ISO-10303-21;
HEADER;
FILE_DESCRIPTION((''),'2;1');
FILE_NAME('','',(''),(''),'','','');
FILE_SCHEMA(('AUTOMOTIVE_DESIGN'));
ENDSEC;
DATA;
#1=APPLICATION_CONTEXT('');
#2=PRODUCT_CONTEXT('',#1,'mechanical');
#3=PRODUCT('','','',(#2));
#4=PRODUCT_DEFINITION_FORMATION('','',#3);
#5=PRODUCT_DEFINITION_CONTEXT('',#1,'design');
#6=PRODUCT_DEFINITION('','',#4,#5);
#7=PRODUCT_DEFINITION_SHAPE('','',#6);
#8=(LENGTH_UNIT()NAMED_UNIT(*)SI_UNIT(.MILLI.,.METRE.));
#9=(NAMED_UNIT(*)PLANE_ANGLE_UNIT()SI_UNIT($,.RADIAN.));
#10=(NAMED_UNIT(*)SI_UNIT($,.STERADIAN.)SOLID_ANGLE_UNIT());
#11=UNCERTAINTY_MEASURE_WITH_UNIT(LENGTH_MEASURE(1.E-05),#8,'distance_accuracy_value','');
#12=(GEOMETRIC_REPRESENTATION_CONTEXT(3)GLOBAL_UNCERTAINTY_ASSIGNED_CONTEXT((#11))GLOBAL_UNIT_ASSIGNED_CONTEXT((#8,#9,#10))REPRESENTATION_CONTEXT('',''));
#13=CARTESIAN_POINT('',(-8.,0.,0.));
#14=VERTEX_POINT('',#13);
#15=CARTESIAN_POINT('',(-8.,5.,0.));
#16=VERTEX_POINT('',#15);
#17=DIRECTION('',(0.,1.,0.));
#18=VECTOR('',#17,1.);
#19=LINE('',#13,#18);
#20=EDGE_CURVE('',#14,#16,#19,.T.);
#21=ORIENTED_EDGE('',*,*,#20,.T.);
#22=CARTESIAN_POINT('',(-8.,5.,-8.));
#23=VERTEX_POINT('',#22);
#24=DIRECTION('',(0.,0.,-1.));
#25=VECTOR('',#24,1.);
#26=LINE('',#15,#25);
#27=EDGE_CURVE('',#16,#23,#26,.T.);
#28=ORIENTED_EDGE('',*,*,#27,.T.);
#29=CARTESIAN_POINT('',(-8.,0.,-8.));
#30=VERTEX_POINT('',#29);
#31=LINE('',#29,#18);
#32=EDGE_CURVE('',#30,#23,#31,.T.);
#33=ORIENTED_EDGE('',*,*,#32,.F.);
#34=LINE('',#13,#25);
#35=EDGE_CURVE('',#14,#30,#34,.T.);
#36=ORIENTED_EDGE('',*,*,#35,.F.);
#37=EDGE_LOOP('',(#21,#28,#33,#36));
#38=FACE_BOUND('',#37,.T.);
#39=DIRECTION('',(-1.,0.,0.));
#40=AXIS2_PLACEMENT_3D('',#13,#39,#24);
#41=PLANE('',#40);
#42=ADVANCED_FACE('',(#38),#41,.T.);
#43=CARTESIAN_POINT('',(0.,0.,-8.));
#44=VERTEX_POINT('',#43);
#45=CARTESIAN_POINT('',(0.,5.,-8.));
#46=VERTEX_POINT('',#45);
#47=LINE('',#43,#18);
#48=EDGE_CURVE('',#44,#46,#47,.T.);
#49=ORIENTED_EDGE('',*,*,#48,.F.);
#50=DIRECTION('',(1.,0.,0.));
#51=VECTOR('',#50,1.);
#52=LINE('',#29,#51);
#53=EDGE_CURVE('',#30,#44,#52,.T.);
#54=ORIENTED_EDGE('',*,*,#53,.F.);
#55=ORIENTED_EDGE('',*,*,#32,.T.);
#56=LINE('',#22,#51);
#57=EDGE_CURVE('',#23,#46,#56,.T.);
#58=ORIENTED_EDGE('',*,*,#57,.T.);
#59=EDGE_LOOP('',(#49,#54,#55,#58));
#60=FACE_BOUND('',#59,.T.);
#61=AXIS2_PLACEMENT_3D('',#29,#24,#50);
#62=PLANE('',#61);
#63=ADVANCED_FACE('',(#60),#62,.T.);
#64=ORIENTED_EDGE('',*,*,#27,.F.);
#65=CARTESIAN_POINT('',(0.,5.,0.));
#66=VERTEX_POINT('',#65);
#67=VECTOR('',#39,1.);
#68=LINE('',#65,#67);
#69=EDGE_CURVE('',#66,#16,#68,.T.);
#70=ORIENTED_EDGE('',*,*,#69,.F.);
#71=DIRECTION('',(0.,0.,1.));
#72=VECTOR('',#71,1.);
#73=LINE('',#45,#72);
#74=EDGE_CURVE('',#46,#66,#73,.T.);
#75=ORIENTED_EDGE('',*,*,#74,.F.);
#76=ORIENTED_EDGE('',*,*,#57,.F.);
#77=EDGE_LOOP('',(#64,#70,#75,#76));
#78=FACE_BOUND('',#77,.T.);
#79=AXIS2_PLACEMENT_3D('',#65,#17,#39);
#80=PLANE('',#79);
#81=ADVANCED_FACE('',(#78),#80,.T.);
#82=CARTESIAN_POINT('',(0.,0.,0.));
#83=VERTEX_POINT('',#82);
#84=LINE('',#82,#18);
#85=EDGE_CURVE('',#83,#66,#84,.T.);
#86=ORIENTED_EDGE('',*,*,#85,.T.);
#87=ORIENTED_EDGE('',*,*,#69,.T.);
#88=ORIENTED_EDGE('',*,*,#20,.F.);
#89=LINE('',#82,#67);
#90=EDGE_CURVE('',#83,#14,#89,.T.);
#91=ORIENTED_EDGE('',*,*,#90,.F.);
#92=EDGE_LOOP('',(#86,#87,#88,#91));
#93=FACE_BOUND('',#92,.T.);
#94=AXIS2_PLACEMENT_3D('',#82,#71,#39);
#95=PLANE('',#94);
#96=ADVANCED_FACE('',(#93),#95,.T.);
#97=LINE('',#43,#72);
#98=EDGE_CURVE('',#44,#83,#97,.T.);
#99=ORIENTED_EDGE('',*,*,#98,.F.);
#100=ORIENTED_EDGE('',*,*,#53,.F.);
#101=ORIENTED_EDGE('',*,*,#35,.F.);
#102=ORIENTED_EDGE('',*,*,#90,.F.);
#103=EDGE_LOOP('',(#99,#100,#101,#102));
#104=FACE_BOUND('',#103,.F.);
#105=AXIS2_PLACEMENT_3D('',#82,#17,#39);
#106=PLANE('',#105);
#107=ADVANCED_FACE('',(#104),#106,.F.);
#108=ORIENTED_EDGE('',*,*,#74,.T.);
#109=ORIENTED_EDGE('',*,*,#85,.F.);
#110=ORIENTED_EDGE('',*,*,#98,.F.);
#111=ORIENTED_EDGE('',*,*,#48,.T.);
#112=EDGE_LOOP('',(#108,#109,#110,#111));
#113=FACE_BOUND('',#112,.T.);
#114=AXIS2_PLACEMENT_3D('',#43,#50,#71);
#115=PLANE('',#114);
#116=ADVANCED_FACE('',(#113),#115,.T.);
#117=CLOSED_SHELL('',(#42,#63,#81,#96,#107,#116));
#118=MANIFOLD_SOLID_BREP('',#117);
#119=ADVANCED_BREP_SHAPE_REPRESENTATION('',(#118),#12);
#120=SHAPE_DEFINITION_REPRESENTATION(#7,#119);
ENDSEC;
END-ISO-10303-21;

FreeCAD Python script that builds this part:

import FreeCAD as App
import Part
import Sketcher
Q = App.Units.Quantity

doc = App.newDocument("Part")
body = doc.addObject("PartDesign::Body", "Body")

sketch1 = doc.addObject("Sketcher::SketchObject", "Sketch")
body.addObject(sketch1)
sketch1.AttachmentSupport = (doc.XZ_Plane, [""])
sketch1.MapMode = "FlatFace"
sketch1.addGeometry([
    Part.LineSegment(App.Vector(-8, 0, 0), App.Vector(0, 0, 0)),
    Part.LineSegment(App.Vector(0, 0, 0), App.Vector(0, -8, 0)),
    Part.LineSegment(App.Vector(0, -8, 0), App.Vector(-8, -8, 0)),
    Part.LineSegment(App.Vector(-8, -8, 0), App.Vector(-8, 0, 0)),
], False)
sketch1.addConstraint([
    Sketcher.Constraint("Coincident", 0, 2, 1, 1),
    Sketcher.Constraint("Coincident", 1, 2, 2, 1),
    Sketcher.Constraint("Coincident", 2, 2, 3, 1),
    Sketcher.Constraint("Coincident", 3, 2, 0, 1),
    Sketcher.Constraint("Horizontal", 0),
    Sketcher.Constraint("Vertical", 1),
    Sketcher.Constraint("Horizontal", 2),
    Sketcher.Constraint("Vertical", 3),
    Sketcher.Constraint("Coincident", 0, 2, -1, 1),
    Sketcher.Constraint("Equal", 2, 1),
    Sketcher.Constraint("DistanceX", 0, 1, 0, 2, Q("8 mm")),
])
pad1 = doc.addObject("PartDesign::Pad", "Pad")
body.addObject(pad1)
pad1.Profile = sketch1
pad1.Length = 5
pad1.Reversed = True

doc.recompute()
